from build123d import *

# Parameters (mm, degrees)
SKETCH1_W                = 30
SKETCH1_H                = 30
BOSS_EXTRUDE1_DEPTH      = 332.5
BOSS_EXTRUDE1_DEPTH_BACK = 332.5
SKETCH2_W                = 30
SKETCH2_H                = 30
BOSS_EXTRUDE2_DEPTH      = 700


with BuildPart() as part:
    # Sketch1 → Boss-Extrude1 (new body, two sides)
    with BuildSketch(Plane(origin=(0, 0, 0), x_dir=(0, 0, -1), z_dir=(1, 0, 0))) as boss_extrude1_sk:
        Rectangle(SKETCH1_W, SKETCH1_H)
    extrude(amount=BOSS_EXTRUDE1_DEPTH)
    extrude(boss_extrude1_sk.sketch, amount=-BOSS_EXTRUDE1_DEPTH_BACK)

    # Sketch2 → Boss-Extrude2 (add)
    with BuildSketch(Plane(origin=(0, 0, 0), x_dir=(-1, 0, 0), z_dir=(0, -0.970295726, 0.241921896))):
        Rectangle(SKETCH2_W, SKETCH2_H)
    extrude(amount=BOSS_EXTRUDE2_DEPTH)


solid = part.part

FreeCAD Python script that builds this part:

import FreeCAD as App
import Part
import Sketcher
from FreeCAD import Vector
Q = App.Units.Quantity

doc = App.newDocument("Part")
body = doc.addObject("PartDesign::Body", "Body")

# Sketch on YZ plane
sketch1 = doc.addObject("Sketcher::SketchObject", "Sketch")
body.addObject(sketch1)
sketch1.AttachmentSupport = (doc.YZ_Plane, [""])
sketch1.MapMode = "FlatFace"
sketch1.addGeometry([
    Part.LineSegment(Vector(15, 15, 0), Vector(-15, 15, 0)),
    Part.LineSegment(Vector(-15, 15, 0), Vector(-15, -15, 0)),
    Part.LineSegment(Vector(-15, -15, 0), Vector(15, -15, 0)),
    Part.LineSegment(Vector(15, -15, 0), Vector(15, 15, 0)),
], False)
sketch1.addConstraint([
    Sketcher.Constraint("Coincident", 0, 2, 1, 1),
    Sketcher.Constraint("Coincident", 1, 2, 2, 1),
    Sketcher.Constraint("Coincident", 2, 2, 3, 1),
    Sketcher.Constraint("Coincident", 3, 2, 0, 1),
    Sketcher.Constraint("Horizontal", 0),
    Sketcher.Constraint("Vertical", 1),
    Sketcher.Constraint("Horizontal", 2),
    Sketcher.Constraint("Vertical", 3),
    Sketcher.Constraint("Symmetric", 0, 2, 2, 2, -1, 1),
    Sketcher.Constraint("Equal", 2, 1),
    Sketcher.Constraint("DistanceX", 0, 2, 0, 1, Q("30 mm")),
])
pad1 = doc.addObject("PartDesign::Pad", "Pad")
body.addObject(pad1)
pad1.Profile = sketch1
pad1.Type = "TwoLengths"
pad1.Length = 332.5
pad1.Length2 = 332.5

# Sketch on an angled plane
sketch2 = doc.addObject("Sketcher::SketchObject", "Sketch001")
body.addObject(sketch2)
sketch2.Placement = App.Placement(Vector(0, 0, 0), App.Rotation(Vector(-1, 0, 0), Vector(0, -0.241921896, -0.970295726), Vector(0, -0.970295726, 0.241921896), "ZXY"))
sketch2.addGeometry([
    Part.LineSegment(Vector(-15, 15, 0), Vector(-15, -15, 0)),
    Part.LineSegment(Vector(-15, -15, 0), Vector(15, -15, 0)),
    Part.LineSegment(Vector(15, -15, 0), Vector(15, 15, 0)),
    Part.LineSegment(Vector(15, 15, 0), Vector(-15, 15, 0)),
], False)
sketch2.addConstraint([
    Sketcher.Constraint("Coincident", 0, 2, 1, 1),
    Sketcher.Constraint("Coincident", 1, 2, 2, 1),
    Sketcher.Constraint("Coincident", 2, 2, 3, 1),
    Sketcher.Constraint("Coincident", 3, 2, 0, 1),
    Sketcher.Constraint("Vertical", 0),
    Sketcher.Constraint("Horizontal", 1),
    Sketcher.Constraint("Vertical", 2),
    Sketcher.Constraint("Horizontal", 3),
    Sketcher.Constraint("Symmetric", 0, 2, 2, 2, -1, 1),
    Sketcher.Constraint("Equal", 3, 0),
    Sketcher.Constraint("DistanceX", 1, 1, 1, 2, Q("30 mm")),
])
pad2 = doc.addObject("PartDesign::Pad", "Pad001")
body.addObject(pad2)
pad2.Profile = sketch2
pad2.Length = 700

doc.recompute()
